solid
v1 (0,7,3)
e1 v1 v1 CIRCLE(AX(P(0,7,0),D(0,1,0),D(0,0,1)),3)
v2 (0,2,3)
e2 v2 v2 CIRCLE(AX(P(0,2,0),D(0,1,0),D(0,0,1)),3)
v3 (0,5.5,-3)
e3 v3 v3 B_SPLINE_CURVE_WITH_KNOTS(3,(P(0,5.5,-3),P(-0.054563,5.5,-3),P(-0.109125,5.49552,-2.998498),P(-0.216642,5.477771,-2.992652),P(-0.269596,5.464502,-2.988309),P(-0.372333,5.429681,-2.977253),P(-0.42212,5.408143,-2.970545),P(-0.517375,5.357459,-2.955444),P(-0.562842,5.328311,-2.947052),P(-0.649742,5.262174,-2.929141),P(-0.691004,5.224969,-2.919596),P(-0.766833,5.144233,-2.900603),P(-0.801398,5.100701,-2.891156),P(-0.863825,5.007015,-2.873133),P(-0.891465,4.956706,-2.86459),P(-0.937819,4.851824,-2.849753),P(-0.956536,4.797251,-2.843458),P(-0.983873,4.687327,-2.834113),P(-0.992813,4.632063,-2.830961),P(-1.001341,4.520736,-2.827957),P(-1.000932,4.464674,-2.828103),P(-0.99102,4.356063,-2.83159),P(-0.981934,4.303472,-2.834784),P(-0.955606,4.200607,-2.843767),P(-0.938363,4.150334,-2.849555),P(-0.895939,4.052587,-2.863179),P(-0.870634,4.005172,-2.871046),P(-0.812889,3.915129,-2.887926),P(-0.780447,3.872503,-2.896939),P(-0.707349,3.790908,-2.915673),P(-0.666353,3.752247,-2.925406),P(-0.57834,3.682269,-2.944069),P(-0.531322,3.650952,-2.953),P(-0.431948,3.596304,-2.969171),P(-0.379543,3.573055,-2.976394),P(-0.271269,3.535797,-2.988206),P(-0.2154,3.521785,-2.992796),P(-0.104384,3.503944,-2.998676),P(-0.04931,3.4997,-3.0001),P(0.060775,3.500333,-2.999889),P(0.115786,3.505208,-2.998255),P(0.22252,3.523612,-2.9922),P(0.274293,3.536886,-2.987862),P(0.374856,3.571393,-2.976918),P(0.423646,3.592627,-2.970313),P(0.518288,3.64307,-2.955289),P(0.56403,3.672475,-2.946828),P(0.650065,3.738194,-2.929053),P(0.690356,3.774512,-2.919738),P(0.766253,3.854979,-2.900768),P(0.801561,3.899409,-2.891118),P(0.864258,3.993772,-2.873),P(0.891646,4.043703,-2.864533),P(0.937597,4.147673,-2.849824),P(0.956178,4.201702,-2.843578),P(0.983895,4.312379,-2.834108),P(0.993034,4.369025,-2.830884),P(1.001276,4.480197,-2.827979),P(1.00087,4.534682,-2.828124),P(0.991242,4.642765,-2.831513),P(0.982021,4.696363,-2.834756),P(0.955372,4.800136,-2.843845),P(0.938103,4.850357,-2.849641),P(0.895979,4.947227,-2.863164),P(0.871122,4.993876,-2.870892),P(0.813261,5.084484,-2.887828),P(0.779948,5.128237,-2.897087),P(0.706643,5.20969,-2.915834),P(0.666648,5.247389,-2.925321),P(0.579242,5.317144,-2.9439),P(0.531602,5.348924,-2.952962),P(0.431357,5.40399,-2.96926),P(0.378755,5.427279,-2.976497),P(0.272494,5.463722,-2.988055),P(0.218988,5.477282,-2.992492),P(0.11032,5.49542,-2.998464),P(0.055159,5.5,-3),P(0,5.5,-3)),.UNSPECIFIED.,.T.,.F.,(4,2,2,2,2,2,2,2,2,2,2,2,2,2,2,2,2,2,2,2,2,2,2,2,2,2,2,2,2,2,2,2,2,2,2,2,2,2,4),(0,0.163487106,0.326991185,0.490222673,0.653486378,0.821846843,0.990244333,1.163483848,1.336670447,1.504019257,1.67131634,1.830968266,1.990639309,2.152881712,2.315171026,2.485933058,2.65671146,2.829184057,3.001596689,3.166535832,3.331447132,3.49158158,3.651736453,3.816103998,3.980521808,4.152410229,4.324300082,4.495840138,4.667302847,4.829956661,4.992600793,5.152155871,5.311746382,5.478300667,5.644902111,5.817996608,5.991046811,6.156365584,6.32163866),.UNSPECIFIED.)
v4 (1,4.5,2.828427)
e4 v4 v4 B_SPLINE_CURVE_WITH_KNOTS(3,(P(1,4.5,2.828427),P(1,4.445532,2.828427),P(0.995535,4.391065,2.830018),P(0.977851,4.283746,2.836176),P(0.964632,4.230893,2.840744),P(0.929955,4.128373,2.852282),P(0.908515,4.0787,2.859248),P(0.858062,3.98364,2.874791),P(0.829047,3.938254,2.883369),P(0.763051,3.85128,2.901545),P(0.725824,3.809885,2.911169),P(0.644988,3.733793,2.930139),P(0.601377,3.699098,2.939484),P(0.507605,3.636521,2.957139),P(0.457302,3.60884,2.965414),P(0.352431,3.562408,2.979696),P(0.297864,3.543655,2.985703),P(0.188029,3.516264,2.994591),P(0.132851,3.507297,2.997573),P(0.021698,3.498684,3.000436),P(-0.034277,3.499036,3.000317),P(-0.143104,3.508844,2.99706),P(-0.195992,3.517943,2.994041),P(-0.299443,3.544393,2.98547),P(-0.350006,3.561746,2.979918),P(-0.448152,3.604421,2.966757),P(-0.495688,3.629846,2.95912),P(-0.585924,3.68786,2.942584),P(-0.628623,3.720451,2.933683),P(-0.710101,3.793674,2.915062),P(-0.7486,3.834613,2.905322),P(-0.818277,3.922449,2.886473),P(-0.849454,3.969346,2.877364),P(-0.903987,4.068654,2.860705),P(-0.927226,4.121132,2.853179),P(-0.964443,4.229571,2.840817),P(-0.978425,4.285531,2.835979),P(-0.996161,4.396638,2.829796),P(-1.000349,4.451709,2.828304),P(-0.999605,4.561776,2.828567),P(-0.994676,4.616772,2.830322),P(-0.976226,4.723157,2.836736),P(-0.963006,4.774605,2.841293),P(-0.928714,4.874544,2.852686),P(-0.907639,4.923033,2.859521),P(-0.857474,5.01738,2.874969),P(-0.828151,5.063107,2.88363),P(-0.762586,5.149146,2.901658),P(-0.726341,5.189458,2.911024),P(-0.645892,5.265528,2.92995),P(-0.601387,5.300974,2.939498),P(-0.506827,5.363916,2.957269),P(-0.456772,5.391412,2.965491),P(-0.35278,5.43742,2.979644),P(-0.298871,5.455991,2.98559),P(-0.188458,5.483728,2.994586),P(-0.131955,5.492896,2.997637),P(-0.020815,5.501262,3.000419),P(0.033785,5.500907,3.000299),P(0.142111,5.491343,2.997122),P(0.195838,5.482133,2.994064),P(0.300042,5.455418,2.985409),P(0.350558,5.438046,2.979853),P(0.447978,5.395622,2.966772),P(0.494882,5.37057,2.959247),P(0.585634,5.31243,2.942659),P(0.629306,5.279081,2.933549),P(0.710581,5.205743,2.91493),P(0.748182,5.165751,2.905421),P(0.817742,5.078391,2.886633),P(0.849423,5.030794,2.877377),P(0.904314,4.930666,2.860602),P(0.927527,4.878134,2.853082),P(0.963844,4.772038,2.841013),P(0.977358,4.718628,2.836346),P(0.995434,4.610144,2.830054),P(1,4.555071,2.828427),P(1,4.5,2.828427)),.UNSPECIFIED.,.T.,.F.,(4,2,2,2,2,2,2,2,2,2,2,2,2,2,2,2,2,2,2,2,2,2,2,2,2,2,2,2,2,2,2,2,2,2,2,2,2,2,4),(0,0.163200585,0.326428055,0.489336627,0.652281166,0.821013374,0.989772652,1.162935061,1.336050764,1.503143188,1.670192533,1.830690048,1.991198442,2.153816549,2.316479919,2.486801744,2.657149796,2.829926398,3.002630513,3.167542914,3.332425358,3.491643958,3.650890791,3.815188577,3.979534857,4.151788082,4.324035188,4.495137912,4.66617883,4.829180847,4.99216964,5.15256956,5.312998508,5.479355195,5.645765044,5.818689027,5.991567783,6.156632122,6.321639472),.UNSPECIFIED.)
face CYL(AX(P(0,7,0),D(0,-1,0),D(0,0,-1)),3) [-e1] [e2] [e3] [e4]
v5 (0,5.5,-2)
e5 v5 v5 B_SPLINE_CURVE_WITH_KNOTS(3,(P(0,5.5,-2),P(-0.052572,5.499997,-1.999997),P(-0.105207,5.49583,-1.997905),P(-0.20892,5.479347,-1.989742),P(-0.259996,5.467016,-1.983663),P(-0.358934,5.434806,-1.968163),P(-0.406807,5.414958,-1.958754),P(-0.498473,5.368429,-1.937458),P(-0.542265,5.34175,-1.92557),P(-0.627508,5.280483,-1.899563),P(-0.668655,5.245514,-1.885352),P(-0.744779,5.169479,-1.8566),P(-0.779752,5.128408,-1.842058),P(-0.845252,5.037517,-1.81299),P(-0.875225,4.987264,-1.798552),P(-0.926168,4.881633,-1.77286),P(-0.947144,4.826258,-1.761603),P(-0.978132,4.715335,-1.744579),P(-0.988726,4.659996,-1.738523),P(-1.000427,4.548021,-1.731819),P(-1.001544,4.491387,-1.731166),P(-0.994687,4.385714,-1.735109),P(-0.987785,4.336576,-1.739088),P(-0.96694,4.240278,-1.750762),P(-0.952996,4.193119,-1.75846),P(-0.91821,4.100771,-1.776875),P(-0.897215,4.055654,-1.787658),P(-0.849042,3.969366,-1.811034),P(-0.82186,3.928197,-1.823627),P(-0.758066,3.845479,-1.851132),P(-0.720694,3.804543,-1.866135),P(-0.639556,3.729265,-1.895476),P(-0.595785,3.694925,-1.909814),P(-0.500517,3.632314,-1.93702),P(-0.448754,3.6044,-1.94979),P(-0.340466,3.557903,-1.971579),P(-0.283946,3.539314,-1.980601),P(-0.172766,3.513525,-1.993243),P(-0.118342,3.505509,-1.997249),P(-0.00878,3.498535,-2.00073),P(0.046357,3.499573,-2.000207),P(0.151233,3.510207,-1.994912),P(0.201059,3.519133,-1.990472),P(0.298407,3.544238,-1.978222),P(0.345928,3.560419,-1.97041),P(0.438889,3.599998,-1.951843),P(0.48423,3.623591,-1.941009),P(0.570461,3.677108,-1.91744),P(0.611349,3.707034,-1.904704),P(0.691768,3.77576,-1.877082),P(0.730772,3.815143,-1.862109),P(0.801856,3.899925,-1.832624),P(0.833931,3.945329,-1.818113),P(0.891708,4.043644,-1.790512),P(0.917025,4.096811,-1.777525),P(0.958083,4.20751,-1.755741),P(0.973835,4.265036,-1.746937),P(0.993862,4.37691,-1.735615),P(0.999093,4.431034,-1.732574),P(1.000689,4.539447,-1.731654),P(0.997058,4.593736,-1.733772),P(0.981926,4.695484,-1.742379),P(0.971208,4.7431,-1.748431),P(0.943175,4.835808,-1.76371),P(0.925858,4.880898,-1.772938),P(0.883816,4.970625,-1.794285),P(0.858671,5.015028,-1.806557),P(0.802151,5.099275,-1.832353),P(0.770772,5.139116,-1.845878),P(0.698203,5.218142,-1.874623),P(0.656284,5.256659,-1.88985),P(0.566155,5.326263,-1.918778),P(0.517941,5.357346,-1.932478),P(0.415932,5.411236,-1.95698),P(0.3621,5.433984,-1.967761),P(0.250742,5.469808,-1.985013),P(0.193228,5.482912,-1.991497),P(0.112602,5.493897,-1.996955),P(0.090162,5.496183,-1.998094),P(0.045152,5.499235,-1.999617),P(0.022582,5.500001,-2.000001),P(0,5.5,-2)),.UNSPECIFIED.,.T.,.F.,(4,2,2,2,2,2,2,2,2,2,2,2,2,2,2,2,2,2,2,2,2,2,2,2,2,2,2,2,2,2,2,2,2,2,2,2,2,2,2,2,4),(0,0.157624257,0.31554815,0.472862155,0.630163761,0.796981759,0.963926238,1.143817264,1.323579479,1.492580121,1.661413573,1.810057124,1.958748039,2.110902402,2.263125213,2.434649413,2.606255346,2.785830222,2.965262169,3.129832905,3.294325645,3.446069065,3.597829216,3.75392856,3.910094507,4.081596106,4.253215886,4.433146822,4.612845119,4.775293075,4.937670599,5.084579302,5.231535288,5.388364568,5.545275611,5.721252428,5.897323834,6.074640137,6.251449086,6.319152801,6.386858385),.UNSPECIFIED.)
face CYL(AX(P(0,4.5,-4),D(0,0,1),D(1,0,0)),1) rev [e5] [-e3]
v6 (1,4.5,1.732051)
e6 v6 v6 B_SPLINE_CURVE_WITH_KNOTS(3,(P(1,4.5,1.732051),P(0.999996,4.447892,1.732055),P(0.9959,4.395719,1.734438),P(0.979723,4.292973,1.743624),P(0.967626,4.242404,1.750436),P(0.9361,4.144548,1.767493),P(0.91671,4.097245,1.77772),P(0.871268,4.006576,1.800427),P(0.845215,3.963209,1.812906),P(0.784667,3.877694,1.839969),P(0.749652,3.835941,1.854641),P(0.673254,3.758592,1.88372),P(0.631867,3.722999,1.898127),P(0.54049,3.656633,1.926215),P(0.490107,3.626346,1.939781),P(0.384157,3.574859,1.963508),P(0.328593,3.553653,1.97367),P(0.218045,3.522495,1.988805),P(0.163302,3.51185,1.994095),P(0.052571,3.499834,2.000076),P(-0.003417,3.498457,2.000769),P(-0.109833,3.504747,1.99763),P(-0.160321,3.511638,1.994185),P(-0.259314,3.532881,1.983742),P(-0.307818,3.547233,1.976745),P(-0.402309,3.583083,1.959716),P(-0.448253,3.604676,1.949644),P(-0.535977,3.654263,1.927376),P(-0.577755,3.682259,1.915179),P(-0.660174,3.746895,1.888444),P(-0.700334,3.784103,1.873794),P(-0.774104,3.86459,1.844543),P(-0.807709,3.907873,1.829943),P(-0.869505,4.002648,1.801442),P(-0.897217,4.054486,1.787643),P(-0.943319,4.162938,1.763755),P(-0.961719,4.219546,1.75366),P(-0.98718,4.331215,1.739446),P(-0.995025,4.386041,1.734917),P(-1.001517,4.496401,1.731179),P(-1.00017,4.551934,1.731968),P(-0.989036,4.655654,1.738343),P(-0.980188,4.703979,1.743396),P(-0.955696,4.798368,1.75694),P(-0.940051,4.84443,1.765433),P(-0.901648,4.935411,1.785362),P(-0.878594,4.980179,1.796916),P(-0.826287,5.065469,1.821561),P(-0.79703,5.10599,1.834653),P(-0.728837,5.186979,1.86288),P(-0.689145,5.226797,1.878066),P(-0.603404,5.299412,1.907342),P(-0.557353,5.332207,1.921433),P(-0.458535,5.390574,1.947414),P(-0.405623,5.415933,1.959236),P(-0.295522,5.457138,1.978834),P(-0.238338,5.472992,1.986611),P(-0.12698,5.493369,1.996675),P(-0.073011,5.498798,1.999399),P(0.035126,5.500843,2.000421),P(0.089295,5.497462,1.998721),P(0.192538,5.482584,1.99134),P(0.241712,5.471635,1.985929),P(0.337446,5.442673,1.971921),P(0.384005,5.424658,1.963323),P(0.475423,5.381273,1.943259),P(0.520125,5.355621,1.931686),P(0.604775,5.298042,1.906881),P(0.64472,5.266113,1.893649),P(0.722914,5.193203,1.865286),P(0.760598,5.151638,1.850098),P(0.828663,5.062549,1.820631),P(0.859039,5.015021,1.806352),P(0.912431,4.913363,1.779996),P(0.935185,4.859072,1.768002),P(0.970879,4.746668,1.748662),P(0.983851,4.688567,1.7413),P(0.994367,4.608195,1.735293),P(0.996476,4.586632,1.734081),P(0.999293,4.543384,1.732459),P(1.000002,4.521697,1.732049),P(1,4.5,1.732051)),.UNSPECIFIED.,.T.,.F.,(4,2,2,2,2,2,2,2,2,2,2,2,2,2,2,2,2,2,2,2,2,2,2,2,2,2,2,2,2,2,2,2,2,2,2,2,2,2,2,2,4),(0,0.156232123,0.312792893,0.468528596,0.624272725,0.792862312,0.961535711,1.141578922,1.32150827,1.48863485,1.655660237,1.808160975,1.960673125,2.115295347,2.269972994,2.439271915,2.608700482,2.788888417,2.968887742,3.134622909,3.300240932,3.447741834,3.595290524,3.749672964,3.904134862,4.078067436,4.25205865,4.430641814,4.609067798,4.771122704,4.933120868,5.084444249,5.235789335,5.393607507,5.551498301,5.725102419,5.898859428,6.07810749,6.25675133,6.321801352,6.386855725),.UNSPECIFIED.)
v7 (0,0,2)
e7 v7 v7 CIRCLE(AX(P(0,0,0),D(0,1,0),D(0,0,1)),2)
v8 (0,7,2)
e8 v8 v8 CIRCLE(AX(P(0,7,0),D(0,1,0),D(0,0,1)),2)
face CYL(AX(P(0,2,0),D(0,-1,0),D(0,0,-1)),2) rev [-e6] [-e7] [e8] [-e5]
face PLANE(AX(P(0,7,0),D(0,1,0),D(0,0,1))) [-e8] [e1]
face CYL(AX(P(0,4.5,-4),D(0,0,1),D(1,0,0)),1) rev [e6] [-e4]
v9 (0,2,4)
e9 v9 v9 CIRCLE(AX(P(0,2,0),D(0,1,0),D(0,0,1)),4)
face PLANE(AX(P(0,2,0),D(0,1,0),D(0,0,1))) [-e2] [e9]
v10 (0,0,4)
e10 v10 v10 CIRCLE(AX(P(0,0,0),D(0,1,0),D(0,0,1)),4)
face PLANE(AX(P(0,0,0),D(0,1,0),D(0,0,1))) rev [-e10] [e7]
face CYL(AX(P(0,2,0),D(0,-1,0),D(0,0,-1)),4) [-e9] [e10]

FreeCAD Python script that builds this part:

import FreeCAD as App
import Part
import Sketcher

V = App.Vector
Q = App.Units.Quantity

doc = App.newDocument("Part")
params = doc.addObject("Spreadsheet::Sheet", "Params")
for row, (alias, value) in enumerate([
    ("sketch1_diameter", "8 mm"),
    ("sketch1_diameter2", "4 mm"),
    ("pad1_length", "2 mm"),
    ("sketch2_diameter", "6 mm"),
    ("sketch2_diameter2", "4 mm"),
    ("pad2_length", "5 mm"),
    ("sketch3_diameter", "2 mm"),
], start=1):
    params.set(f"A{row}", alias)
    params.set(f"B{row}", "=" + value)
    params.setAlias(f"B{row}", alias)

body = doc.addObject("PartDesign::Body", "Body")

sketch1 = body.newObject("Sketcher::SketchObject", "Sketch")
sketch1.AttachmentSupport = (doc.getObject("XZ_Plane"), [""])
sketch1.MapMode = "FlatFace"
sketch1.addGeometry(Part.Circle(V(0, 0, 0), V(0, 0, 1), 4), False)
sketch1.addGeometry(Part.Circle(V(0, 0, 0), V(0, 0, 1), 2), False)
sketch1.addConstraint(Sketcher.Constraint("Coincident", 0, 3, -1, 1))
sketch1.addConstraint(Sketcher.Constraint("Coincident", 1, 3, -1, 1))
sketch1.addConstraint(Sketcher.Constraint("Diameter", 0, Q("8 mm")))
sketch1.addConstraint(Sketcher.Constraint("Diameter", 1, Q("4 mm")))
sketch1.setExpression("Constraints[2]", "Params.sketch1_diameter")
sketch1.setExpression("Constraints[3]", "Params.sketch1_diameter2")
pad1 = body.newObject("PartDesign::Pad", "Pad")
pad1.Profile = sketch1
pad1.setExpression("Length", "Params.pad1_length")
pad1.Reversed = True

sketch2 = body.newObject("Sketcher::SketchObject", "Sketch001")
sketch2.AttachmentSupport = (doc.getObject("XZ_Plane"), [""])
sketch2.MapMode = "FlatFace"
sketch2.AttachmentOffset = App.Placement(V(0, 0, -2), App.Rotation())
sketch2.addGeometry(Part.Circle(V(0, 0, 0), V(0, 0, 1), 3), False)
sketch2.addGeometry(Part.Circle(V(0, 0, 0), V(0, 0, 1), 2), False)
sketch2.addConstraint(Sketcher.Constraint("Coincident", 0, 3, -1, 1))
sketch2.addConstraint(Sketcher.Constraint("Coincident", 1, 3, -1, 1))
sketch2.addConstraint(Sketcher.Constraint("Diameter", 0, Q("6 mm")))
sketch2.addConstraint(Sketcher.Constraint("Diameter", 1, Q("4 mm")))
sketch2.setExpression("Constraints[2]", "Params.sketch2_diameter")
sketch2.setExpression("Constraints[3]", "Params.sketch2_diameter2")
pad2 = body.newObject("PartDesign::Pad", "Pad001")
pad2.Profile = sketch2
pad2.setExpression("Length", "Params.pad2_length")
pad2.Reversed = True

sketch3 = body.newObject("Sketcher::SketchObject", "Sketch002")
sketch3.AttachmentSupport = (doc.getObject("XY_Plane"), [""])
sketch3.MapMode = "FlatFace"
sketch3.addGeometry(Part.Circle(V(0, 4.5, 0), V(0, 0, 1), 1), False)
sketch3.addConstraint(Sketcher.Constraint("PointOnObject", 0, 3, -2))
sketch3.addConstraint(Sketcher.Constraint("Diameter", 0, Q("2 mm")))
sketch3.addConstraint(Sketcher.Constraint("DistanceY", -1, 1, 0, 3, Q("4.5 mm")))
sketch3.setExpression("Constraints[1]", "Params.sketch3_diameter")
pocket1 = body.newObject("PartDesign::Pocket", "Pocket")
pocket1.Profile = sketch3
pocket1.Type = "ThroughAll"
pocket1.Midplane = True

doc.recompute()
